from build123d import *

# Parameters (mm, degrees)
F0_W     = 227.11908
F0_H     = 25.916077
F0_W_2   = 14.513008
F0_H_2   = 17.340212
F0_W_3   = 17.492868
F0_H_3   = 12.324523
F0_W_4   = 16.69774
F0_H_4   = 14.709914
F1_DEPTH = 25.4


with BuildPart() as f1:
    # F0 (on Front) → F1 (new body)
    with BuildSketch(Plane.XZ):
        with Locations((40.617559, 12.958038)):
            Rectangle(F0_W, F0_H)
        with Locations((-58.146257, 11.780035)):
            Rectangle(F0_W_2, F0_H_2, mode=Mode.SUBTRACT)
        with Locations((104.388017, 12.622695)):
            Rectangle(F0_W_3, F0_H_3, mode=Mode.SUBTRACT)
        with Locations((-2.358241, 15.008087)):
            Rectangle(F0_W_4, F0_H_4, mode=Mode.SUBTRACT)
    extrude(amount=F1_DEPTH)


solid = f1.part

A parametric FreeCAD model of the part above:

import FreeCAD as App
import Part
import Sketcher

V = App.Vector
Q = App.Units.Quantity

doc = App.newDocument("Part")
body = doc.addObject("PartDesign::Body", "Body")

sketch1 = body.newObject("Sketcher::SketchObject", "Sketch")
sketch1.AttachmentSupport = (doc.getObject("XZ_Plane"), [""])
sketch1.MapMode = "FlatFace"
sketch1.addGeometry([
    Part.LineSegment(V(-72.941981, 25.916076, 0), V(-72.941981, 0, 0)),
    Part.LineSegment(V(-72.941981, 0, 0), V(154.177099, 0, 0)),
    Part.LineSegment(V(154.177099, 0, 0), V(154.177099, 25.916076, 0)),
    Part.LineSegment(V(154.177099, 25.916076, 0), V(-72.941981, 25.916076, 0)),
    Part.LineSegment(V(-50.889753, 3.109929, 0), V(-65.402761, 3.109929, 0)),
    Part.LineSegment(V(-65.402761, 3.109929, 0), V(-65.402761, 20.450141, 0)),
    Part.LineSegment(V(-65.402761, 20.450141, 0), V(-50.889753, 20.450141, 0)),
    Part.LineSegment(V(-50.889753, 20.450141, 0), V(-50.889753, 3.109929, 0)),
    Part.LineSegment(V(113.134451, 6.460433, 0), V(95.641583, 6.460433, 0)),
    Part.LineSegment(V(95.641583, 6.460433, 0), V(95.641583, 18.784956, 0)),
    Part.LineSegment(V(95.641583, 18.784956, 0), V(113.134451, 18.784956, 0)),
    Part.LineSegment(V(113.134451, 18.784956, 0), V(113.134451, 6.460433, 0)),
    Part.LineSegment(V(5.990629, 7.65313, 0), V(-10.707111, 7.65313, 0)),
    Part.LineSegment(V(-10.707111, 7.65313, 0), V(-10.707111, 22.363044, 0)),
    Part.LineSegment(V(-10.707111, 22.363044, 0), V(5.990629, 22.363044, 0)),
    Part.LineSegment(V(5.990629, 22.363044, 0), V(5.990629, 7.65313, 0)),
], False)
sketch1.addConstraint([
    Sketcher.Constraint("Coincident", 0, 2, 1, 1),
    Sketcher.Constraint("Coincident", 1, 2, 2, 1),
    Sketcher.Constraint("Coincident", 2, 2, 3, 1),
    Sketcher.Constraint("Coincident", 3, 2, 0, 1),
    Sketcher.Constraint("Coincident", 4, 2, 5, 1),
    Sketcher.Constraint("Coincident", 5, 2, 6, 1),
    Sketcher.Constraint("Coincident", 6, 2, 7, 1),
    Sketcher.Constraint("Coincident", 7, 2, 4, 1),
    Sketcher.Constraint("Coincident", 8, 2, 9, 1),
    Sketcher.Constraint("Coincident", 9, 2, 10, 1),
    Sketcher.Constraint("Coincident", 10, 2, 11, 1),
    Sketcher.Constraint("Coincident", 11, 2, 8, 1),
    Sketcher.Constraint("Coincident", 12, 2, 13, 1),
    Sketcher.Constraint("Coincident", 13, 2, 14, 1),
    Sketcher.Constraint("Coincident", 14, 2, 15, 1),
    Sketcher.Constraint("Coincident", 15, 2, 12, 1),
    Sketcher.Constraint("Vertical", 0),
    Sketcher.Constraint("Horizontal", 1),
    Sketcher.Constraint("Vertical", 2),
    Sketcher.Constraint("Horizontal", 3),
    Sketcher.Constraint("Horizontal", 4),
    Sketcher.Constraint("Vertical", 5),
    Sketcher.Constraint("Horizontal", 6),
    Sketcher.Constraint("Vertical", 7),
    Sketcher.Constraint("Horizontal", 8),
    Sketcher.Constraint("Vertical", 9),
    Sketcher.Constraint("Horizontal", 10),
    Sketcher.Constraint("Vertical", 11),
    Sketcher.Constraint("Horizontal", 12),
    Sketcher.Constraint("Vertical", 13),
    Sketcher.Constraint("Horizontal", 14),
    Sketcher.Constraint("Vertical", 15),
    Sketcher.Constraint("PointOnObject", 0, 2, -1),
    Sketcher.Constraint("DistanceX", 1, 1, 1, 2, 227.11908),
    Sketcher.Constraint("DistanceX", 8, 2, 8, 1, 17.492868),
    Sketcher.Constraint("DistanceX", 12, 2, 12, 1, 16.69774),
    Sketcher.Constraint("DistanceY", 5, 1, 5, 2, 17.340212),
    Sketcher.Constraint("DistanceX", -1, 1, 1, 2, 154.177099),
    Sketcher.Constraint("DistanceY", 7, 2, 12, 2, 4.543201),
    Sketcher.Constraint("DistanceX", 4, 2, 4, 1, 14.513008),
    Sketcher.Constraint("DistanceY", 0, 2, 0, 1, 25.916077),
    Sketcher.Constraint("DistanceY", 9, 1, 9, 2, 12.324523),
    Sketcher.Constraint("DistanceY", 13, 1, 13, 2, 14.709914),
    Sketcher.Constraint("DistanceX", 4, 2, -1, 1, 65.402761),
    Sketcher.Constraint("DistanceY", -1, 1, 4, 2, 3.109929),
    Sketcher.Constraint("DistanceX", -1, 1, 10, 2, 113.134451),
    Sketcher.Constraint("DistanceX", 12, 2, -1, 1, 10.707111),
    Sketcher.Constraint("DistanceY", 9, 2, 2, 2, 7.13112),
])
pad1 = body.newObject("PartDesign::Pad", "Pad")
pad1.Profile = sketch1
pad1.Length = Q("1 in")

doc.recompute()
